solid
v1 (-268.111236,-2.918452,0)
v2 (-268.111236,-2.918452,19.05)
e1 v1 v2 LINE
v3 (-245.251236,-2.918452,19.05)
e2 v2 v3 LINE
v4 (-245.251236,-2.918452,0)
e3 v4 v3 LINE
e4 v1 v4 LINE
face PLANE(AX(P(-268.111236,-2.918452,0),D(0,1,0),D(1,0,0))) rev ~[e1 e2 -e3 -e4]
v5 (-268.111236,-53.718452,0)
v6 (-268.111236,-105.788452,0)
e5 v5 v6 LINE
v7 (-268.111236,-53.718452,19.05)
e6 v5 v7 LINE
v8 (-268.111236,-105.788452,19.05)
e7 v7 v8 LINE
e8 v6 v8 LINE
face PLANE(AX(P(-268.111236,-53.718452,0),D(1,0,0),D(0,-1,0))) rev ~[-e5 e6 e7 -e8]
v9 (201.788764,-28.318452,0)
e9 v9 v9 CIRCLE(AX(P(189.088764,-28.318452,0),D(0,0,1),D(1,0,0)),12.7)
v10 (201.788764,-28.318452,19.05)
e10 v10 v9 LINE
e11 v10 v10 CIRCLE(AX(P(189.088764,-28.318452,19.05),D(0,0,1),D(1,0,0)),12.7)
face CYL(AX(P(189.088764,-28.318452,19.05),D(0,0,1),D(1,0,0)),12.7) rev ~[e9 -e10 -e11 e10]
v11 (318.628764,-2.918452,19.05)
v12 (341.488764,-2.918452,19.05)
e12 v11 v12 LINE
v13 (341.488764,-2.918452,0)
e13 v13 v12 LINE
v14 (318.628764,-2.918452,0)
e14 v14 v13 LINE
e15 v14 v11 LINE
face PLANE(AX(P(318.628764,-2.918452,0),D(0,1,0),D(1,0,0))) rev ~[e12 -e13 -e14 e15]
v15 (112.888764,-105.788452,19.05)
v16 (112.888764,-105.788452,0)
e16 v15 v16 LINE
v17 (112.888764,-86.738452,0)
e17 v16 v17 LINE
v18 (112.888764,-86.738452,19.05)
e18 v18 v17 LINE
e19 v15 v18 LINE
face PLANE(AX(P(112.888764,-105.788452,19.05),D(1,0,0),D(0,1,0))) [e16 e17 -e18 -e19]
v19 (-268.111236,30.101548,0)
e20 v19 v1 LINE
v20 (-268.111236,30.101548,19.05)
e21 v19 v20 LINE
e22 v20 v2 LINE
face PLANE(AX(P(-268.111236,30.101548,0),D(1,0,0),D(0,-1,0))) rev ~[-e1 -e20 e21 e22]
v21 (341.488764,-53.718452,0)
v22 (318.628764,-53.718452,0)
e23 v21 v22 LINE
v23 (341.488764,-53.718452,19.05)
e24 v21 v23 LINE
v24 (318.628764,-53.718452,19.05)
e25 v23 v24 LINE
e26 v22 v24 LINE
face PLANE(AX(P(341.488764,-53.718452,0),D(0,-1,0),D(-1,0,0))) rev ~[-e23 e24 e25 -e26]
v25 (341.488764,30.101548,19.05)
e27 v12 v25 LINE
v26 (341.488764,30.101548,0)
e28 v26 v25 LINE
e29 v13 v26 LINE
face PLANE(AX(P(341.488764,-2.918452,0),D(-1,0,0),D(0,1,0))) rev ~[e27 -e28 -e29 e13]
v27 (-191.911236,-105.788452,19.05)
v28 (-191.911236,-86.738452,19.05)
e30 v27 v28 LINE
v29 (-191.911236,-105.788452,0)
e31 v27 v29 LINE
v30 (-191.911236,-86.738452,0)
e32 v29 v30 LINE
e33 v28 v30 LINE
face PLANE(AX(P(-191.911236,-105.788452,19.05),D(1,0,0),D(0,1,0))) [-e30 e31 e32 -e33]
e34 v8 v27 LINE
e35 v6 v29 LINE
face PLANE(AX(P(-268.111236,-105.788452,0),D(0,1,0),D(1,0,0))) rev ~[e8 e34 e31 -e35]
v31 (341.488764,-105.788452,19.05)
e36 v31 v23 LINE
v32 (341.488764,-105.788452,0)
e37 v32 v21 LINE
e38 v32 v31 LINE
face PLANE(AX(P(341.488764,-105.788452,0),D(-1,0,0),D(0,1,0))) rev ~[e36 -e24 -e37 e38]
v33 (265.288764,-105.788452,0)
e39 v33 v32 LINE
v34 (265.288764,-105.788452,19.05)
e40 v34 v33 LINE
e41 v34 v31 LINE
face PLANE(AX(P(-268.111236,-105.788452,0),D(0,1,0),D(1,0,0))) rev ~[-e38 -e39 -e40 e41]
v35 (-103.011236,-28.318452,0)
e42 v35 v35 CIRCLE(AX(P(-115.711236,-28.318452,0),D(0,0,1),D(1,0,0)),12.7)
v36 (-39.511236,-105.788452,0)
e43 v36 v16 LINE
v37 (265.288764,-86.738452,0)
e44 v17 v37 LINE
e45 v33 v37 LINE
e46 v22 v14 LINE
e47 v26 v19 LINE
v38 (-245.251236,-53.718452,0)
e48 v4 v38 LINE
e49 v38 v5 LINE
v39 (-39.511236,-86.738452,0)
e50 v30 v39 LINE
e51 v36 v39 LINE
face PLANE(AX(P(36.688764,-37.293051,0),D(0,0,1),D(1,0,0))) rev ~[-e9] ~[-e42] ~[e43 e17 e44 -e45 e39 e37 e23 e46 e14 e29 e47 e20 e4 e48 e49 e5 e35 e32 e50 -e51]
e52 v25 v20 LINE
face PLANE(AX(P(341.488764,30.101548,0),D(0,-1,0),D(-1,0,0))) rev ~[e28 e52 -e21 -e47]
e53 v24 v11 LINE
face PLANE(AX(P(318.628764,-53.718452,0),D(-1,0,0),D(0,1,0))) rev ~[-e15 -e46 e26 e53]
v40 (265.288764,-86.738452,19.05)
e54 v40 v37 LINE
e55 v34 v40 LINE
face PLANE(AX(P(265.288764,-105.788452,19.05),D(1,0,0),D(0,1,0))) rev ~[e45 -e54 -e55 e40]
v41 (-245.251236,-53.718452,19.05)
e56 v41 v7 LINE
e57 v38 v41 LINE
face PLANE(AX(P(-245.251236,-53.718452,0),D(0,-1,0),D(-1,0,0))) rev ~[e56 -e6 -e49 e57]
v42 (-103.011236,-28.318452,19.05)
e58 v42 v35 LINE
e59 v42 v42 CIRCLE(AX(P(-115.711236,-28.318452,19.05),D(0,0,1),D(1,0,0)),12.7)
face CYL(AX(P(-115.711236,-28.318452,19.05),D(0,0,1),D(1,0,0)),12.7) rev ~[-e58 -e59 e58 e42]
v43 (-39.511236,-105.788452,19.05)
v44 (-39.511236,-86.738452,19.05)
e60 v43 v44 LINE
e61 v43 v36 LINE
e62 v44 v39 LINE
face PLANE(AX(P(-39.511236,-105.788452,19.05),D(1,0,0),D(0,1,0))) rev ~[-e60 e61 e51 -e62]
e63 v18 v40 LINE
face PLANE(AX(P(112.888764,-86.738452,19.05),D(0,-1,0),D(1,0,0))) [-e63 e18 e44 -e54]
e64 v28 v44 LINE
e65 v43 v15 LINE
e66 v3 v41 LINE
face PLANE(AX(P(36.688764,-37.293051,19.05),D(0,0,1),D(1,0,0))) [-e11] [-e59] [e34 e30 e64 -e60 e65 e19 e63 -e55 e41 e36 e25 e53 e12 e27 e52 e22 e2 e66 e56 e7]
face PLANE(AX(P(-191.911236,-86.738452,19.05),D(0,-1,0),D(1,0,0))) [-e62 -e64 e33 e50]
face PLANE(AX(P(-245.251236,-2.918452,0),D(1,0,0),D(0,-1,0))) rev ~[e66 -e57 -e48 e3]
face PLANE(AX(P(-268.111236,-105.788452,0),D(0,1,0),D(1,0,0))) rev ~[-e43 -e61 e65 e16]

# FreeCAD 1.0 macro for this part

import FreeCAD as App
import Part
import Sketcher

V = App.Vector
Q = App.Units.Quantity


def add_polygon(sketch, points):
    """Adds a closed chain of lines whose ends are joined by coincident constraints."""
    first, n = sketch.GeometryCount, len(points)
    for a, b in zip(points, points[1:] + points[:1]):
        sketch.addGeometry(Part.LineSegment(App.Vector(*a, 0), App.Vector(*b, 0)), False)
    for i in range(n):
        sketch.addConstraint(Sketcher.Constraint("Coincident", first + i, 2, first + (i + 1) % n, 1))

doc = App.newDocument("Part")
body = doc.addObject("PartDesign::Body", "Body")

# Sketch on XY plane
sketch1 = doc.addObject("Sketcher::SketchObject", "Sketch")
body.addObject(sketch1)
sketch1.AttachmentSupport = (doc.XY_Plane, [""])
sketch1.MapMode = "FlatFace"
add_polygon(sketch1, [(341.488764, -53.718452), (318.628764, -53.718452), (318.628764, -2.918452), (341.488764, -2.918452), (341.488764, 30.101548), (-268.111236, 30.101548), (-268.111236, -2.918452), (-245.251236, -2.918452), (-245.251236, -53.718452), (-268.111236, -53.718452), (-268.111236, -105.788452), (341.488764, -105.788452)])  # lines 0-11
sketch1.addConstraint([
    Sketcher.Constraint("Horizontal", 0),
    Sketcher.Constraint("Vertical", 1),
    Sketcher.Constraint("Horizontal", 2),
    Sketcher.Constraint("Vertical", 3),
    Sketcher.Constraint("Horizontal", 4),
    Sketcher.Constraint("Vertical", 5),
    Sketcher.Constraint("Horizontal", 6),
    Sketcher.Constraint("Vertical", 7),
    Sketcher.Constraint("Horizontal", 8),
    Sketcher.Constraint("Vertical", 9),
    Sketcher.Constraint("Horizontal", 10),
    Sketcher.Constraint("Vertical", 11),
    Sketcher.Constraint("Horizontal", 2, 2, 5, 2),
    Sketcher.Constraint("Horizontal", 0, 2, 7, 2),
    Sketcher.Constraint("Vertical", 5, 2, 8, 2),
    Sketcher.Constraint("Vertical", 3, 2, 10, 2),
    Sketcher.Constraint("Equal", 2, 6),
    Sketcher.Constraint("DistanceX", 4, 2, 4, 1, Q("24 in")),
    Sketcher.Constraint("DistanceY", 1, 1, 1, 2, Q("2 in")),
    Sketcher.Constraint("DistanceX", 0, 2, 0, 1, Q("0.9 in")),
    Sketcher.Constraint("DistanceY", 3, 1, 3, 2, Q("1.3 in")),
    Sketcher.Constraint("DistanceY", 9, 2, 9, 1, Q("2.05 in")),
    Sketcher.Constraint("DistanceY", 1, 2, -1, 1, Q("2.918452 mm")),
    Sketcher.Constraint("DistanceX", -1, 1, 0, 2, Q("318.628764 mm")),
])
pad1 = doc.addObject("PartDesign::Pad", "Pad")
body.addObject(pad1)
pad1.Profile = sketch1
pad1.Length = Q("0.75 in")

# Sketch on XY plane
sketch2 = doc.addObject("Sketcher::SketchObject", "Sketch001")
body.addObject(sketch2)
sketch2.AttachmentSupport = (doc.XY_Plane, [""])
sketch2.MapMode = "FlatFace"
sketch2.AttachmentOffset = App.Placement(V(0, 0, 0.75 * 25.4), App.Rotation())
add_polygon(sketch2, [(-191.911236, -86.738452), (-191.911236, -105.788452), (-39.511236, -105.788452), (-39.511236, -86.738452)])  # lines 0-3
add_polygon(sketch2, [(112.888764, -86.738452), (112.888764, -105.788452), (265.288764, -105.788452), (265.288764, -86.738452)])  # lines 4-7
sketch2.addConstraint([
    Sketcher.Constraint("Vertical", 0),
    Sketcher.Constraint("Horizontal", 1),
    Sketcher.Constraint("Vertical", 2),
    Sketcher.Constraint("Horizontal", 3),
    Sketcher.Constraint("Vertical", 4),
    Sketcher.Constraint("Horizontal", 5),
    Sketcher.Constraint("Vertical", 6),
    Sketcher.Constraint("Horizontal", 7),
    Sketcher.Constraint("Horizontal", 1, 2, 4, 2),
    Sketcher.Constraint("Horizontal", 3, 2, 6, 2),
    Sketcher.Constraint("Equal", 3, 5),
    Sketcher.Constraint("DistanceX", 1, 1, 1, 2, Q("6 in")),
    Sketcher.Constraint("DistanceX", 1, 2, 4, 2, Q("6 in")),
    Sketcher.Constraint("DistanceY", 0, 2, 0, 1, Q("0.75 in")),
    Sketcher.Constraint("DistanceY", 2, 2, -1, 1, Q("86.738452 mm")),
    Sketcher.Constraint("DistanceX", 0, 2, -1, 1, Q("191.911236 mm")),
])
pocket1 = doc.addObject("PartDesign::Pocket", "Pocket")
body.addObject(pocket1)
pocket1.Profile = sketch2
pocket1.Type = "ThroughAll"

# Sketch on XY plane
sketch3 = doc.addObject("Sketcher::SketchObject", "Sketch002")
body.addObject(sketch3)
sketch3.AttachmentSupport = (doc.XY_Plane, [""])
sketch3.MapMode = "FlatFace"
sketch3.AttachmentOffset = App.Placement(V(0, 0, 0.75 * 25.4), App.Rotation())
sketch3.addGeometry([
    Part.Circle(V(189.088764, -28.318452, 0), V(0, 0, 1), 12.7),
    Part.Circle(V(-115.711236, -28.318452, 0), V(0, 0, 1), 12.7),
], False)
sketch3.addConstraint([
    Sketcher.Constraint("Equal", 0, 1),
    Sketcher.Constraint("Horizontal", 0, 3, 1, 3),
    Sketcher.Constraint("Diameter", 0, Q("1 in")),
    Sketcher.Constraint("DistanceX", 1, 3, 0, 3, Q("12 in")),
    Sketcher.Constraint("DistanceX", -1, 1, 0, 3, Q("189.088764 mm")),
    Sketcher.Constraint("DistanceY", 0, 3, -1, 1, Q("28.318452 mm")),
])
pocket2 = doc.addObject("PartDesign::Pocket", "Pocket001")
body.addObject(pocket2)
pocket2.Profile = sketch3
pocket2.Type = "ThroughAll"

doc.recompute()
